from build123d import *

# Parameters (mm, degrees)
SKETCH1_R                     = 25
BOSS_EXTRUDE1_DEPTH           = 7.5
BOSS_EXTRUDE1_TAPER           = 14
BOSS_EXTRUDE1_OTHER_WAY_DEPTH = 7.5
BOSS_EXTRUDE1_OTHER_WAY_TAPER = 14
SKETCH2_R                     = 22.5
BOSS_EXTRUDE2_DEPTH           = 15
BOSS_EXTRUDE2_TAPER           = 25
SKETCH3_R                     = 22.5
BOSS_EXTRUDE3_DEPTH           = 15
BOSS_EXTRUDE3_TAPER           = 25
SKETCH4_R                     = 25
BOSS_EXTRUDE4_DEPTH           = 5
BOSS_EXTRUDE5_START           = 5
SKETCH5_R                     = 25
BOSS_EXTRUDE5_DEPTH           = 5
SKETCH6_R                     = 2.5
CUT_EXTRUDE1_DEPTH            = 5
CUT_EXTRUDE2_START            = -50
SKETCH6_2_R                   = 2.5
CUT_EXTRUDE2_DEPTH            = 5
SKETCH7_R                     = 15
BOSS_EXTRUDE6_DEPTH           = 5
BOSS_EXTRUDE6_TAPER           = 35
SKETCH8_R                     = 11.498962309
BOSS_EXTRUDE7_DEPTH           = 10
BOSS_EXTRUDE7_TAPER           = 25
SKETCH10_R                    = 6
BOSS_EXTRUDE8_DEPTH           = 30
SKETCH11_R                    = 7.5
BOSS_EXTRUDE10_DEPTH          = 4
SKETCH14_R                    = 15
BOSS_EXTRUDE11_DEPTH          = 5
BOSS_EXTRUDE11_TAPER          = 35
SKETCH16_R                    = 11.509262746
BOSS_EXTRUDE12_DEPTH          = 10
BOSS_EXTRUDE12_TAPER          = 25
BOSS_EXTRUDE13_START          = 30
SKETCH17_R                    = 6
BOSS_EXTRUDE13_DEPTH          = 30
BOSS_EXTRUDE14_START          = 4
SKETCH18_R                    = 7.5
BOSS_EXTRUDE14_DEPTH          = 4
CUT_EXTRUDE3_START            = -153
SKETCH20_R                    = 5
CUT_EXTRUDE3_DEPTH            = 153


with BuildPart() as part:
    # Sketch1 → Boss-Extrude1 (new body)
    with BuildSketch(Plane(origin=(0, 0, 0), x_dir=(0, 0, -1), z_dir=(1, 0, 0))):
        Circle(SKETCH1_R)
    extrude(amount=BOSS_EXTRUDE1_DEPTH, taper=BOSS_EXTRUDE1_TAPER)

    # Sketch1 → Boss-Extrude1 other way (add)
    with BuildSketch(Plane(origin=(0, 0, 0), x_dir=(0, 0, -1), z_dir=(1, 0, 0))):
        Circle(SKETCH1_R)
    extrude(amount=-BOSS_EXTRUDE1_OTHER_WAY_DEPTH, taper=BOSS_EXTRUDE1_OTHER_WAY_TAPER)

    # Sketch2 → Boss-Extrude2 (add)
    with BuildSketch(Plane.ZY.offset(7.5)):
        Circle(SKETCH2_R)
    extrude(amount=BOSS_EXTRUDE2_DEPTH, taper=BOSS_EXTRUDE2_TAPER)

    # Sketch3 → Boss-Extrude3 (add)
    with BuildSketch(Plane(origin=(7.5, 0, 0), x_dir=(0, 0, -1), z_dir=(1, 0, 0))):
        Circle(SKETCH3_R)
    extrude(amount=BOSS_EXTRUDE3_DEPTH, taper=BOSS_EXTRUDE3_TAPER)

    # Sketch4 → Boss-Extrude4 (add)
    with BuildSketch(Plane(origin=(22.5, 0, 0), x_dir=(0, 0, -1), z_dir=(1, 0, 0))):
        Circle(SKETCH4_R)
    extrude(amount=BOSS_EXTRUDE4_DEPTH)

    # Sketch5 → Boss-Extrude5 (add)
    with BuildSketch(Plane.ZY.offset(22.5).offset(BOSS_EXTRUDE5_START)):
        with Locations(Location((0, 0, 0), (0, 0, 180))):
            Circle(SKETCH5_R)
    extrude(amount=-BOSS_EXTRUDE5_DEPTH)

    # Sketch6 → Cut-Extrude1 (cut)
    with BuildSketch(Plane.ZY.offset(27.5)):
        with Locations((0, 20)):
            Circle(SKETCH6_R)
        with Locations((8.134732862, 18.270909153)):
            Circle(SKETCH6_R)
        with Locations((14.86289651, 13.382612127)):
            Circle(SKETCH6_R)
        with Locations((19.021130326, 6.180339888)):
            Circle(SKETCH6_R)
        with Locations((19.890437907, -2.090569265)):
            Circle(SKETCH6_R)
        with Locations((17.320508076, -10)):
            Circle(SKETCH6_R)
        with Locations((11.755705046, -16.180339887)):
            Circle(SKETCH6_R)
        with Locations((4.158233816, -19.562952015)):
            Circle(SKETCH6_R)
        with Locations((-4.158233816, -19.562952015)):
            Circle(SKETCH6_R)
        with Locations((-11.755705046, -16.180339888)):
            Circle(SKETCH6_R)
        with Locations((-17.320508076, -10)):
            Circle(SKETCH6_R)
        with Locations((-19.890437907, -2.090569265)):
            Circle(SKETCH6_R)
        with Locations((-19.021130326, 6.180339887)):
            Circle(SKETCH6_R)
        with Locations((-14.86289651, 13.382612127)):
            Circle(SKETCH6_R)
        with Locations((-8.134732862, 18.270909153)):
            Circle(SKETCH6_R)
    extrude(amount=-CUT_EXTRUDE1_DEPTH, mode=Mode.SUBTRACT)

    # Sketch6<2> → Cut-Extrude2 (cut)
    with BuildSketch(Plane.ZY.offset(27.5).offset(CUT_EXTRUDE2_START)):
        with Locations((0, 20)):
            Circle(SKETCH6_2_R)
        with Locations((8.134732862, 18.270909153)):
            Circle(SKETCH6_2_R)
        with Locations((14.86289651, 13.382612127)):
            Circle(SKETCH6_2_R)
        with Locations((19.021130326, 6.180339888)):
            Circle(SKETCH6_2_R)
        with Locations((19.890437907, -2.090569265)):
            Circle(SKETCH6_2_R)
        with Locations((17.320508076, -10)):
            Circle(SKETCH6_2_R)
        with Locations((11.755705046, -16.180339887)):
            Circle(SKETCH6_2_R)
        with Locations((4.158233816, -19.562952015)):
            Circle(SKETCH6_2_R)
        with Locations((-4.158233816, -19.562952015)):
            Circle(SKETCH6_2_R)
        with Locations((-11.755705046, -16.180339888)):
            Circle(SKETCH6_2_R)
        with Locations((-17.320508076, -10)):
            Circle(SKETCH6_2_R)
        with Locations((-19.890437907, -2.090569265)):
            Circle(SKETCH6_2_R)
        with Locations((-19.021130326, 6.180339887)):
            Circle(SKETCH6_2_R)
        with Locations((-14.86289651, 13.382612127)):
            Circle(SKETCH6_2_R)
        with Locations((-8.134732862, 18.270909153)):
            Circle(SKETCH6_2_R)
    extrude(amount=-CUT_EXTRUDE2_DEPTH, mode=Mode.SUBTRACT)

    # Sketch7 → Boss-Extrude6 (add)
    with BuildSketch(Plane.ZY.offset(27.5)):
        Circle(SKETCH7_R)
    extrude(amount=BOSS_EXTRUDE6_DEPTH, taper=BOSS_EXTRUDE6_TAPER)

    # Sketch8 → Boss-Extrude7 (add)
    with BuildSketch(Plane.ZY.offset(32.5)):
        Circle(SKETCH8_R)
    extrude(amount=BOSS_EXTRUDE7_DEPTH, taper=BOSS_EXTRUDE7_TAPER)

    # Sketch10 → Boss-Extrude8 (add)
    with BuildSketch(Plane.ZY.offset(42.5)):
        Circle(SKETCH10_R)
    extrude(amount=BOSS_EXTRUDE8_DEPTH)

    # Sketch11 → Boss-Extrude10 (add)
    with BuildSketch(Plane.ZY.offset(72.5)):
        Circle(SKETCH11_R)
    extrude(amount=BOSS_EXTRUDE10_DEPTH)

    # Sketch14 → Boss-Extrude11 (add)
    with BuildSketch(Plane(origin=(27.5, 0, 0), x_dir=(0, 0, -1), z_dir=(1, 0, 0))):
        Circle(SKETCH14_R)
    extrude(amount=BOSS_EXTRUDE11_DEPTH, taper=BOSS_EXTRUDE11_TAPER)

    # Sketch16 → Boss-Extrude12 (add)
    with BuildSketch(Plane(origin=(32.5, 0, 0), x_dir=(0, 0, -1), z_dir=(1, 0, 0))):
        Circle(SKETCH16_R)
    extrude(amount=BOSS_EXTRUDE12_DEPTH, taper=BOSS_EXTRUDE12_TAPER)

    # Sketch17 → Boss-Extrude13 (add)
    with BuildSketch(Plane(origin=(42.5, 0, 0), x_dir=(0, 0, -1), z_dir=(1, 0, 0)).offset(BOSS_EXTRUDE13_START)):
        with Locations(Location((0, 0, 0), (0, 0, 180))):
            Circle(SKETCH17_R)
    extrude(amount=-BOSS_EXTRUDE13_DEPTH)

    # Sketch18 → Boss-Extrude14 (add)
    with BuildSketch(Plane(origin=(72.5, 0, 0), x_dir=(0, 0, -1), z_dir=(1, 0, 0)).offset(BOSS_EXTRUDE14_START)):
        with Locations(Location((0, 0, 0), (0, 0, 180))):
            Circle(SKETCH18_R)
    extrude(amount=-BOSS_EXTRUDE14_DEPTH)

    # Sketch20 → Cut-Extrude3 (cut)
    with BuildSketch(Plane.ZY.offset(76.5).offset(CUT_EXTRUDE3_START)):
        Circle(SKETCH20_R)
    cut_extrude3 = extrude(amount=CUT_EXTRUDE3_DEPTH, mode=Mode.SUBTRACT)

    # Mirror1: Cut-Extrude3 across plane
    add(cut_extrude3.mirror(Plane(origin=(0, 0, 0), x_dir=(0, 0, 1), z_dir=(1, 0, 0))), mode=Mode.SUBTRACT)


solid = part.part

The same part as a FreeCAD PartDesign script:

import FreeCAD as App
import Part
import Sketcher
Q = App.Units.Quantity

doc = App.newDocument("Part")
body = doc.addObject("PartDesign::Body", "Body")

# Sketch on YZ plane
sketch1 = body.newObject("Sketcher::SketchObject", "Sketch")
sketch1.AttachmentSupport = (doc.getObject("YZ_Plane"), [""])
sketch1.MapMode = "FlatFace"
sketch1.addGeometry(Part.Circle(App.Vector(0, 0, 0), App.Vector(0, 0, 1), 25), False)
sketch1.addConstraint([
    Sketcher.Constraint("Coincident", 0, 3, -1, 1),
    Sketcher.Constraint("Diameter", 0, Q("50 mm")),
])
pad1 = body.newObject("PartDesign::Pad", "Pad")
pad1.Profile = sketch1
pad1.Length = 7.5
pad1.TaperAngle = -14

# Sketch on YZ plane
sketch2 = body.newObject("Sketcher::SketchObject", "Sketch001")
sketch2.AttachmentSupport = (doc.getObject("YZ_Plane"), [""])
sketch2.MapMode = "FlatFace"
sketch2.addGeometry(Part.Circle(App.Vector(0, 0, 0), App.Vector(0, 0, 1), 25), False)
sketch2.addConstraint([
    Sketcher.Constraint("Coincident", 0, 3, -1, 1),
    Sketcher.Constraint("Diameter", 0, Q("50 mm")),
])
pad2 = body.newObject("PartDesign::Pad", "Pad001")
pad2.Profile = sketch2
pad2.Length = 7.5
pad2.Reversed = True
pad2.TaperAngle = -14

# Sketch on YZ plane
sketch3 = body.newObject("Sketcher::SketchObject", "Sketch002")
sketch3.AttachmentSupport = (doc.getObject("YZ_Plane"), [""])
sketch3.MapMode = "FlatFace"
sketch3.AttachmentOffset = App.Placement(App.Vector(0, 0, -7.5), App.Rotation())
sketch3.addGeometry(Part.Circle(App.Vector(0, 0, 0), App.Vector(0, 0, 1), 22), False)
sketch3.addConstraint([
    Sketcher.Constraint("Coincident", 0, 3, -1, 1),
    Sketcher.Constraint("Diameter", 0, Q("45 mm")),
])
pad3 = body.newObject("PartDesign::Pad", "Pad002")
pad3.Profile = sketch3
pad3.Length = 15
pad3.Reversed = True
pad3.TaperAngle = -25

# Sketch on YZ plane
sketch4 = body.newObject("Sketcher::SketchObject", "Sketch003")
sketch4.AttachmentSupport = (doc.getObject("YZ_Plane"), [""])
sketch4.MapMode = "FlatFace"
sketch4.AttachmentOffset = App.Placement(App.Vector(0, 0, 7.5), App.Rotation())
sketch4.addGeometry(Part.Circle(App.Vector(0, 0, 0), App.Vector(0, 0, 1), 22), False)
sketch4.addConstraint([
    Sketcher.Constraint("Coincident", 0, 3, -1, 1),
    Sketcher.Constraint("Diameter", 0, Q("45 mm")),
])
pad4 = body.newObject("PartDesign::Pad", "Pad003")
pad4.Profile = sketch4
pad4.Length = 15
pad4.TaperAngle = -25

# Sketch on YZ plane
sketch5 = body.newObject("Sketcher::SketchObject", "Sketch004")
sketch5.AttachmentSupport = (doc.getObject("YZ_Plane"), [""])
sketch5.MapMode = "FlatFace"
sketch5.AttachmentOffset = App.Placement(App.Vector(0, 0, 22.5), App.Rotation())
sketch5.addGeometry(Part.Circle(App.Vector(0, 0, 0), App.Vector(0, 0, 1), 25), False)
sketch5.addConstraint([
    Sketcher.Constraint("Coincident", 0, 3, -1, 1),
    Sketcher.Constraint("Diameter", 0, Q("50 mm")),
])
pad5 = body.newObject("PartDesign::Pad", "Pad004")
pad5.Profile = sketch5
pad5.Length = 5

# Sketch on YZ plane
sketch6 = body.newObject("Sketcher::SketchObject", "Sketch005")
sketch6.AttachmentSupport = (doc.getObject("YZ_Plane"), [""])
sketch6.MapMode = "FlatFace"
sketch6.AttachmentOffset = App.Placement(App.Vector(0, 0, -27.5), App.Rotation())
sketch6.addGeometry(Part.Circle(App.Vector(0, 0, 0), App.Vector(0, 0, 1), 25), False)
sketch6.addConstraint([
    Sketcher.Constraint("Coincident", 0, 3, -1, 1),
    Sketcher.Constraint("Diameter", 0, Q("50 mm")),
])
pad6 = body.newObject("PartDesign::Pad", "Pad005")
pad6.Profile = sketch6
pad6.Length = 5

# Sketch on YZ plane
sketch7 = body.newObject("Sketcher::SketchObject", "Sketch006")
sketch7.AttachmentSupport = (doc.getObject("YZ_Plane"), [""])
sketch7.MapMode = "FlatFace"
sketch7.AttachmentOffset = App.Placement(App.Vector(0, 0, -27.5), App.Rotation())
sketch7.addGeometry([
    Part.Circle(App.Vector(20, 0, 0), App.Vector(0, 0, 1), 2.5),  # 0
    Part.Circle(App.Vector(18.3, 8.1, 0), App.Vector(0, 0, 1), 2.5),  # 1
    Part.Circle(App.Vector(13.4, 14.9, 0), App.Vector(0, 0, 1), 2.5),  # 2
    Part.Circle(App.Vector(6.2, 19, 0), App.Vector(0, 0, 1), 2.5),  # 3
    Part.Circle(App.Vector(-2.1, 19.9, 0), App.Vector(0, 0, 1), 2.5),  # 4
    Part.Circle(App.Vector(-10, 17.3, 0), App.Vector(0, 0, 1), 2.5),  # 5
    Part.Circle(App.Vector(-16.2, 11.8, 0), App.Vector(0, 0, 1), 2.5),  # 6
    Part.Circle(App.Vector(-19.6, 4.2, 0), App.Vector(0, 0, 1), 2.5),  # 7
    Part.Circle(App.Vector(-19.6, -4.2, 0), App.Vector(0, 0, 1), 2.5),  # 8
    Part.Circle(App.Vector(-16.2, -11.8, 0), App.Vector(0, 0, 1), 2.5),  # 9
    Part.Circle(App.Vector(-10, -17.3, 0), App.Vector(0, 0, 1), 2.5),  # 10
    Part.Circle(App.Vector(-2.1, -19.9, 0), App.Vector(0, 0, 1), 2.5),  # 11
    Part.Circle(App.Vector(6.2, -19, 0), App.Vector(0, 0, 1), 2.5),  # 12
    Part.Circle(App.Vector(13.4, -14.9, 0), App.Vector(0, 0, 1), 2.5),  # 13
    Part.Circle(App.Vector(18.3, -8.1, 0), App.Vector(0, 0, 1), 2.5),  # 14
], False)
sketch7.addConstraint([
    Sketcher.Constraint("Equal", 0, 1),
    Sketcher.Constraint("Equal", 1, 2),
    Sketcher.Constraint("Equal", 2, 3),
    Sketcher.Constraint("Equal", 3, 4),
    Sketcher.Constraint("Equal", 4, 5),
    Sketcher.Constraint("Equal", 5, 6),
    Sketcher.Constraint("Equal", 6, 7),
    Sketcher.Constraint("Equal", 7, 8),
    Sketcher.Constraint("Equal", 8, 9),
    Sketcher.Constraint("Equal", 9, 10),
    Sketcher.Constraint("Equal", 10, 11),
    Sketcher.Constraint("Equal", 11, 12),
    Sketcher.Constraint("Equal", 12, 13),
    Sketcher.Constraint("Equal", 13, 14),
    Sketcher.Constraint("Symmetric", 7, 3, 8, 3, -1),
    Sketcher.Constraint("Symmetric", 6, 3, 9, 3, -1),
    Sketcher.Constraint("Symmetric", 5, 3, 10, 3, -1),
    Sketcher.Constraint("Symmetric", 4, 3, 11, 3, -1),
    Sketcher.Constraint("Symmetric", 3, 3, 12, 3, -1),
    Sketcher.Constraint("Symmetric", 2, 3, 13, 3, -1),
    Sketcher.Constraint("Symmetric", 1, 3, 14, 3, -1),
    Sketcher.Constraint("PointOnObject", 0, 3, -1),
    Sketcher.Constraint("Diameter", 0, Q("5 mm")),
    Sketcher.Constraint("DistanceX", -1, 1, 0, 3, Q("20 mm")),
    Sketcher.Constraint("DistanceX", 5, 3, -1, 1, Q("10 mm")),
    Sketcher.Constraint("DistanceX", -1, 1, 1, 3, Q("18.270909 mm")),
    Sketcher.Constraint("DistanceX", -1, 1, 3, 3, Q("6.18034 mm")),
    Sketcher.Constraint("DistanceY", -1, 1, 3, 3, Q("19.02113 mm")),
    Sketcher.Constraint("DistanceX", 4, 3, -1, 1, Q("2.090569 mm")),
    Sketcher.Constraint("DistanceY", -1, 1, 5, 3, Q("17.320508 mm")),
    Sketcher.Constraint("DistanceX", 6, 3, -1, 1, Q("16.18034 mm")),
    Sketcher.Constraint("DistanceX", 4, 3, 2, 3, Q("15.473181 mm")),
    Sketcher.Constraint("DistanceY", 2, 3, 4, 3, Q("5.027541 mm")),
    Sketcher.Constraint("DistanceY", 5, 3, 4, 3, Q("2.56993 mm")),
    Sketcher.Constraint("DistanceY", 6, 3, 2, 3, Q("3.107191 mm")),
    Sketcher.Constraint("DistanceY", 7, 3, 6, 3, Q("7.597471 mm")),
    Sketcher.Constraint("DistanceX", 7, 3, 3, 3, Q("25.743292 mm")),
    Sketcher.Constraint("DistanceY", 13, 3, 1, 3, Q("22.997629 mm")),
])
pocket1 = body.newObject("PartDesign::Pocket", "Pocket")
pocket1.Profile = sketch7
pocket1.Length = 5
pocket1.Reversed = True

# Sketch on YZ plane
sketch8 = body.newObject("Sketcher::SketchObject", "Sketch007")
sketch8.AttachmentSupport = (doc.getObject("YZ_Plane"), [""])
sketch8.MapMode = "FlatFace"
sketch8.AttachmentOffset = App.Placement(App.Vector(0, 0, 22.5), App.Rotation())
sketch8.addGeometry([
    Part.Circle(App.Vector(20, 0, 0), App.Vector(0, 0, 1), 2.5),  # 0
    Part.Circle(App.Vector(18.3, 8.1, 0), App.Vector(0, 0, 1), 2.5),  # 1
    Part.Circle(App.Vector(13.4, 14.9, 0), App.Vector(0, 0, 1), 2.5),  # 2
    Part.Circle(App.Vector(6.2, 19, 0), App.Vector(0, 0, 1), 2.5),  # 3
    Part.Circle(App.Vector(-2.1, 19.9, 0), App.Vector(0, 0, 1), 2.5),  # 4
    Part.Circle(App.Vector(-10, 17.3, 0), App.Vector(0, 0, 1), 2.5),  # 5
    Part.Circle(App.Vector(-16.2, 11.8, 0), App.Vector(0, 0, 1), 2.5),  # 6
    Part.Circle(App.Vector(-19.6, 4.2, 0), App.Vector(0, 0, 1), 2.5),  # 7
    Part.Circle(App.Vector(-19.6, -4.2, 0), App.Vector(0, 0, 1), 2.5),  # 8
    Part.Circle(App.Vector(-16.2, -11.8, 0), App.Vector(0, 0, 1), 2.5),  # 9
    Part.Circle(App.Vector(-10, -17.3, 0), App.Vector(0, 0, 1), 2.5),  # 10
    Part.Circle(App.Vector(-2.1, -19.9, 0), App.Vector(0, 0, 1), 2.5),  # 11
    Part.Circle(App.Vector(6.2, -19, 0), App.Vector(0, 0, 1), 2.5),  # 12
    Part.Circle(App.Vector(13.4, -14.9, 0), App.Vector(0, 0, 1), 2.5),  # 13
    Part.Circle(App.Vector(18.3, -8.1, 0), App.Vector(0, 0, 1), 2.5),  # 14
], False)
sketch8.addConstraint([
    Sketcher.Constraint("Equal", 0, 1),
    Sketcher.Constraint("Equal", 1, 2),
    Sketcher.Constraint("Equal", 2, 3),
    Sketcher.Constraint("Equal", 3, 4),
    Sketcher.Constraint("Equal", 4, 5),
    Sketcher.Constraint("Equal", 5, 6),
    Sketcher.Constraint("Equal", 6, 7),
    Sketcher.Constraint("Equal", 7, 8),
    Sketcher.Constraint("Equal", 8, 9),
    Sketcher.Constraint("Equal", 9, 10),
    Sketcher.Constraint("Equal", 10, 11),
    Sketcher.Constraint("Equal", 11, 12),
    Sketcher.Constraint("Equal", 12, 13),
    Sketcher.Constraint("Equal", 13, 14),
    Sketcher.Constraint("Symmetric", 7, 3, 8, 3, -1),
    Sketcher.Constraint("Symmetric", 6, 3, 9, 3, -1),
    Sketcher.Constraint("Symmetric", 5, 3, 10, 3, -1),
    Sketcher.Constraint("Symmetric", 4, 3, 11, 3, -1),
    Sketcher.Constraint("Symmetric", 3, 3, 12, 3, -1),
    Sketcher.Constraint("Symmetric", 2, 3, 13, 3, -1),
    Sketcher.Constraint("Symmetric", 1, 3, 14, 3, -1),
    Sketcher.Constraint("PointOnObject", 0, 3, -1),
    Sketcher.Constraint("Diameter", 0, Q("5 mm")),
    Sketcher.Constraint("DistanceX", -1, 1, 0, 3, Q("20 mm")),
    Sketcher.Constraint("DistanceX", 5, 3, -1, 1, Q("10 mm")),
    Sketcher.Constraint("DistanceX", -1, 1, 1, 3, Q("18.270909 mm")),
    Sketcher.Constraint("DistanceX", -1, 1, 3, 3, Q("6.18034 mm")),
    Sketcher.Constraint("DistanceY", -1, 1, 3, 3, Q("19.02113 mm")),
    Sketcher.Constraint("DistanceX", 4, 3, -1, 1, Q("2.090569 mm")),
    Sketcher.Constraint("DistanceY", -1, 1, 5, 3, Q("17.320508 mm")),
    Sketcher.Constraint("DistanceX", 6, 3, -1, 1, Q("16.18034 mm")),
    Sketcher.Constraint("DistanceX", 4, 3, 2, 3, Q("15.473181 mm")),
    Sketcher.Constraint("DistanceY", 2, 3, 4, 3, Q("5.027541 mm")),
    Sketcher.Constraint("DistanceY", 5, 3, 4, 3, Q("2.56993 mm")),
    Sketcher.Constraint("DistanceY", 6, 3, 2, 3, Q("3.107191 mm")),
    Sketcher.Constraint("DistanceY", 7, 3, 6, 3, Q("7.597471 mm")),
    Sketcher.Constraint("DistanceX", 7, 3, 3, 3, Q("25.743292 mm")),
    Sketcher.Constraint("DistanceY", 13, 3, 1, 3, Q("22.997629 mm")),
])
pocket2 = body.newObject("PartDesign::Pocket", "Pocket001")
pocket2.Profile = sketch8
pocket2.Length = 5
pocket2.Reversed = True

# Sketch on YZ plane
sketch9 = body.newObject("Sketcher::SketchObject", "Sketch008")
sketch9.AttachmentSupport = (doc.getObject("YZ_Plane"), [""])
sketch9.MapMode = "FlatFace"
sketch9.AttachmentOffset = App.Placement(App.Vector(0, 0, -27.5), App.Rotation())
sketch9.addGeometry(Part.Circle(App.Vector(0, 0, 0), App.Vector(0, 0, 1), 15), False)
sketch9.addConstraint([
    Sketcher.Constraint("Coincident", 0, 3, -1, 1),
    Sketcher.Constraint("Diameter", 0, Q("30 mm")),
])
pad7 = body.newObject("PartDesign::Pad", "Pad006")
pad7.Profile = sketch9
pad7.Length = 5
pad7.Reversed = True
pad7.TaperAngle = -35

# Sketch on YZ plane
sketch10 = body.newObject("Sketcher::SketchObject", "Sketch009")
sketch10.AttachmentSupport = (doc.getObject("YZ_Plane"), [""])
sketch10.MapMode = "FlatFace"
sketch10.AttachmentOffset = App.Placement(App.Vector(0, 0, -32.5), App.Rotation())
sketch10.addGeometry(Part.Circle(App.Vector(0, 0, 0), App.Vector(0, 0, 1), 11), False)
sketch10.addConstraint([
    Sketcher.Constraint("Coincident", 0, 3, -1, 1),
    Sketcher.Constraint("Diameter", 0, Q("22.997925 mm")),
])
pad8 = body.newObject("PartDesign::Pad", "Pad007")
pad8.Profile = sketch10
pad8.Length = 10
pad8.Reversed = True
pad8.TaperAngle = -25

# Sketch on YZ plane
sketch11 = body.newObject("Sketcher::SketchObject", "Sketch010")
sketch11.AttachmentSupport = (doc.getObject("YZ_Plane"), [""])
sketch11.MapMode = "FlatFace"
sketch11.AttachmentOffset = App.Placement(App.Vector(0, 0, -42.5), App.Rotation())
sketch11.addGeometry(Part.Circle(App.Vector(0, 0, 0), App.Vector(0, 0, 1), 6), False)
sketch11.addConstraint([
    Sketcher.Constraint("Coincident", 0, 3, -1, 1),
    Sketcher.Constraint("Diameter", 0, Q("12 mm")),
])
pad9 = body.newObject("PartDesign::Pad", "Pad008")
pad9.Profile = sketch11
pad9.Length = 30
pad9.Reversed = True

# Sketch on YZ plane
sketch12 = body.newObject("Sketcher::SketchObject", "Sketch011")
sketch12.AttachmentSupport = (doc.getObject("YZ_Plane"), [""])
sketch12.MapMode = "FlatFace"
sketch12.AttachmentOffset = App.Placement(App.Vector(0, 0, -72.5), App.Rotation())
sketch12.addGeometry(Part.Circle(App.Vector(0, 0, 0), App.Vector(0, 0, 1), 8), False)
sketch12.addConstraint([
    Sketcher.Constraint("Coincident", 0, 3, -1, 1),
    Sketcher.Constraint("Diameter", 0, Q("15 mm")),
])
pad10 = body.newObject("PartDesign::Pad", "Pad009")
pad10.Profile = sketch12
pad10.Length = 4
pad10.Reversed = True

# Sketch on YZ plane
sketch13 = body.newObject("Sketcher::SketchObject", "Sketch012")
sketch13.AttachmentSupport = (doc.getObject("YZ_Plane"), [""])
sketch13.MapMode = "FlatFace"
sketch13.AttachmentOffset = App.Placement(App.Vector(0, 0, 27.5), App.Rotation())
sketch13.addGeometry(Part.Circle(App.Vector(0, 0, 0), App.Vector(0, 0, 1), 15), False)
sketch13.addConstraint([
    Sketcher.Constraint("Coincident", 0, 3, -1, 1),
    Sketcher.Constraint("Diameter", 0, Q("30 mm")),
])
pad11 = body.newObject("PartDesign::Pad", "Pad010")
pad11.Profile = sketch13
pad11.Length = 5
pad11.TaperAngle = -35

# Sketch on YZ plane
sketch14 = body.newObject("Sketcher::SketchObject", "Sketch013")
sketch14.AttachmentSupport = (doc.getObject("YZ_Plane"), [""])
sketch14.MapMode = "FlatFace"
sketch14.AttachmentOffset = App.Placement(App.Vector(0, 0, 32.5), App.Rotation())
sketch14.addGeometry(Part.Circle(App.Vector(0, 0, 0), App.Vector(0, 0, 1), 12), False)
sketch14.addConstraint([
    Sketcher.Constraint("Coincident", 0, 3, -1, 1),
    Sketcher.Constraint("Diameter", 0, Q("23.018525 mm")),
])
pad12 = body.newObject("PartDesign::Pad", "Pad011")
pad12.Profile = sketch14
pad12.Length = 10
pad12.TaperAngle = -25

# Sketch on YZ plane
sketch15 = body.newObject("Sketcher::SketchObject", "Sketch014")
sketch15.AttachmentSupport = (doc.getObject("YZ_Plane"), [""])
sketch15.MapMode = "FlatFace"
sketch15.AttachmentOffset = App.Placement(App.Vector(0, 0, 72.5), App.Rotation())
sketch15.addGeometry(Part.Circle(App.Vector(0, 0, 0), App.Vector(0, 0, 1), 6), False)
sketch15.addConstraint([
    Sketcher.Constraint("Coincident", 0, 3, -1, 1),
    Sketcher.Constraint("Diameter", 0, Q("12 mm")),
])
pad13 = body.newObject("PartDesign::Pad", "Pad012")
pad13.Profile = sketch15
pad13.Length = 30
pad13.Reversed = True

# Sketch on YZ plane
sketch16 = body.newObject("Sketcher::SketchObject", "Sketch015")
sketch16.AttachmentSupport = (doc.getObject("YZ_Plane"), [""])
sketch16.MapMode = "FlatFace"
sketch16.AttachmentOffset = App.Placement(App.Vector(0, 0, 76.5), App.Rotation())
sketch16.addGeometry(Part.Circle(App.Vector(0, 0, 0), App.Vector(0, 0, 1), 8), False)
sketch16.addConstraint([
    Sketcher.Constraint("Coincident", 0, 3, -1, 1),
    Sketcher.Constraint("Diameter", 0, Q("15 mm")),
])
pad14 = body.newObject("PartDesign::Pad", "Pad013")
pad14.Profile = sketch16
pad14.Length = 4
pad14.Reversed = True

# Sketch on YZ plane
sketch17 = body.newObject("Sketcher::SketchObject", "Sketch016")
sketch17.AttachmentSupport = (doc.getObject("YZ_Plane"), [""])
sketch17.MapMode = "FlatFace"
sketch17.AttachmentOffset = App.Placement(App.Vector(0, 0, 76.5), App.Rotation())
sketch17.addGeometry(Part.Circle(App.Vector(0, 0, 0), App.Vector(0, 0, 1), 5), False)
sketch17.addConstraint([
    Sketcher.Constraint("Coincident", 0, 3, -1, 1),
    Sketcher.Constraint("Diameter", 0, Q("10 mm")),
])
pocket3 = body.newObject("PartDesign::Pocket", "Pocket002")
pocket3.Profile = sketch17
pocket3.Length = 153
doc.recompute()

mirrored = body.newObject("PartDesign::Mirrored", "Mirrored")
mirrored.Originals = [pocket3]
mirrored.MirrorPlane = (doc.getObject("YZ_Plane"), [""])
body.Tip = mirrored

doc.recompute()
